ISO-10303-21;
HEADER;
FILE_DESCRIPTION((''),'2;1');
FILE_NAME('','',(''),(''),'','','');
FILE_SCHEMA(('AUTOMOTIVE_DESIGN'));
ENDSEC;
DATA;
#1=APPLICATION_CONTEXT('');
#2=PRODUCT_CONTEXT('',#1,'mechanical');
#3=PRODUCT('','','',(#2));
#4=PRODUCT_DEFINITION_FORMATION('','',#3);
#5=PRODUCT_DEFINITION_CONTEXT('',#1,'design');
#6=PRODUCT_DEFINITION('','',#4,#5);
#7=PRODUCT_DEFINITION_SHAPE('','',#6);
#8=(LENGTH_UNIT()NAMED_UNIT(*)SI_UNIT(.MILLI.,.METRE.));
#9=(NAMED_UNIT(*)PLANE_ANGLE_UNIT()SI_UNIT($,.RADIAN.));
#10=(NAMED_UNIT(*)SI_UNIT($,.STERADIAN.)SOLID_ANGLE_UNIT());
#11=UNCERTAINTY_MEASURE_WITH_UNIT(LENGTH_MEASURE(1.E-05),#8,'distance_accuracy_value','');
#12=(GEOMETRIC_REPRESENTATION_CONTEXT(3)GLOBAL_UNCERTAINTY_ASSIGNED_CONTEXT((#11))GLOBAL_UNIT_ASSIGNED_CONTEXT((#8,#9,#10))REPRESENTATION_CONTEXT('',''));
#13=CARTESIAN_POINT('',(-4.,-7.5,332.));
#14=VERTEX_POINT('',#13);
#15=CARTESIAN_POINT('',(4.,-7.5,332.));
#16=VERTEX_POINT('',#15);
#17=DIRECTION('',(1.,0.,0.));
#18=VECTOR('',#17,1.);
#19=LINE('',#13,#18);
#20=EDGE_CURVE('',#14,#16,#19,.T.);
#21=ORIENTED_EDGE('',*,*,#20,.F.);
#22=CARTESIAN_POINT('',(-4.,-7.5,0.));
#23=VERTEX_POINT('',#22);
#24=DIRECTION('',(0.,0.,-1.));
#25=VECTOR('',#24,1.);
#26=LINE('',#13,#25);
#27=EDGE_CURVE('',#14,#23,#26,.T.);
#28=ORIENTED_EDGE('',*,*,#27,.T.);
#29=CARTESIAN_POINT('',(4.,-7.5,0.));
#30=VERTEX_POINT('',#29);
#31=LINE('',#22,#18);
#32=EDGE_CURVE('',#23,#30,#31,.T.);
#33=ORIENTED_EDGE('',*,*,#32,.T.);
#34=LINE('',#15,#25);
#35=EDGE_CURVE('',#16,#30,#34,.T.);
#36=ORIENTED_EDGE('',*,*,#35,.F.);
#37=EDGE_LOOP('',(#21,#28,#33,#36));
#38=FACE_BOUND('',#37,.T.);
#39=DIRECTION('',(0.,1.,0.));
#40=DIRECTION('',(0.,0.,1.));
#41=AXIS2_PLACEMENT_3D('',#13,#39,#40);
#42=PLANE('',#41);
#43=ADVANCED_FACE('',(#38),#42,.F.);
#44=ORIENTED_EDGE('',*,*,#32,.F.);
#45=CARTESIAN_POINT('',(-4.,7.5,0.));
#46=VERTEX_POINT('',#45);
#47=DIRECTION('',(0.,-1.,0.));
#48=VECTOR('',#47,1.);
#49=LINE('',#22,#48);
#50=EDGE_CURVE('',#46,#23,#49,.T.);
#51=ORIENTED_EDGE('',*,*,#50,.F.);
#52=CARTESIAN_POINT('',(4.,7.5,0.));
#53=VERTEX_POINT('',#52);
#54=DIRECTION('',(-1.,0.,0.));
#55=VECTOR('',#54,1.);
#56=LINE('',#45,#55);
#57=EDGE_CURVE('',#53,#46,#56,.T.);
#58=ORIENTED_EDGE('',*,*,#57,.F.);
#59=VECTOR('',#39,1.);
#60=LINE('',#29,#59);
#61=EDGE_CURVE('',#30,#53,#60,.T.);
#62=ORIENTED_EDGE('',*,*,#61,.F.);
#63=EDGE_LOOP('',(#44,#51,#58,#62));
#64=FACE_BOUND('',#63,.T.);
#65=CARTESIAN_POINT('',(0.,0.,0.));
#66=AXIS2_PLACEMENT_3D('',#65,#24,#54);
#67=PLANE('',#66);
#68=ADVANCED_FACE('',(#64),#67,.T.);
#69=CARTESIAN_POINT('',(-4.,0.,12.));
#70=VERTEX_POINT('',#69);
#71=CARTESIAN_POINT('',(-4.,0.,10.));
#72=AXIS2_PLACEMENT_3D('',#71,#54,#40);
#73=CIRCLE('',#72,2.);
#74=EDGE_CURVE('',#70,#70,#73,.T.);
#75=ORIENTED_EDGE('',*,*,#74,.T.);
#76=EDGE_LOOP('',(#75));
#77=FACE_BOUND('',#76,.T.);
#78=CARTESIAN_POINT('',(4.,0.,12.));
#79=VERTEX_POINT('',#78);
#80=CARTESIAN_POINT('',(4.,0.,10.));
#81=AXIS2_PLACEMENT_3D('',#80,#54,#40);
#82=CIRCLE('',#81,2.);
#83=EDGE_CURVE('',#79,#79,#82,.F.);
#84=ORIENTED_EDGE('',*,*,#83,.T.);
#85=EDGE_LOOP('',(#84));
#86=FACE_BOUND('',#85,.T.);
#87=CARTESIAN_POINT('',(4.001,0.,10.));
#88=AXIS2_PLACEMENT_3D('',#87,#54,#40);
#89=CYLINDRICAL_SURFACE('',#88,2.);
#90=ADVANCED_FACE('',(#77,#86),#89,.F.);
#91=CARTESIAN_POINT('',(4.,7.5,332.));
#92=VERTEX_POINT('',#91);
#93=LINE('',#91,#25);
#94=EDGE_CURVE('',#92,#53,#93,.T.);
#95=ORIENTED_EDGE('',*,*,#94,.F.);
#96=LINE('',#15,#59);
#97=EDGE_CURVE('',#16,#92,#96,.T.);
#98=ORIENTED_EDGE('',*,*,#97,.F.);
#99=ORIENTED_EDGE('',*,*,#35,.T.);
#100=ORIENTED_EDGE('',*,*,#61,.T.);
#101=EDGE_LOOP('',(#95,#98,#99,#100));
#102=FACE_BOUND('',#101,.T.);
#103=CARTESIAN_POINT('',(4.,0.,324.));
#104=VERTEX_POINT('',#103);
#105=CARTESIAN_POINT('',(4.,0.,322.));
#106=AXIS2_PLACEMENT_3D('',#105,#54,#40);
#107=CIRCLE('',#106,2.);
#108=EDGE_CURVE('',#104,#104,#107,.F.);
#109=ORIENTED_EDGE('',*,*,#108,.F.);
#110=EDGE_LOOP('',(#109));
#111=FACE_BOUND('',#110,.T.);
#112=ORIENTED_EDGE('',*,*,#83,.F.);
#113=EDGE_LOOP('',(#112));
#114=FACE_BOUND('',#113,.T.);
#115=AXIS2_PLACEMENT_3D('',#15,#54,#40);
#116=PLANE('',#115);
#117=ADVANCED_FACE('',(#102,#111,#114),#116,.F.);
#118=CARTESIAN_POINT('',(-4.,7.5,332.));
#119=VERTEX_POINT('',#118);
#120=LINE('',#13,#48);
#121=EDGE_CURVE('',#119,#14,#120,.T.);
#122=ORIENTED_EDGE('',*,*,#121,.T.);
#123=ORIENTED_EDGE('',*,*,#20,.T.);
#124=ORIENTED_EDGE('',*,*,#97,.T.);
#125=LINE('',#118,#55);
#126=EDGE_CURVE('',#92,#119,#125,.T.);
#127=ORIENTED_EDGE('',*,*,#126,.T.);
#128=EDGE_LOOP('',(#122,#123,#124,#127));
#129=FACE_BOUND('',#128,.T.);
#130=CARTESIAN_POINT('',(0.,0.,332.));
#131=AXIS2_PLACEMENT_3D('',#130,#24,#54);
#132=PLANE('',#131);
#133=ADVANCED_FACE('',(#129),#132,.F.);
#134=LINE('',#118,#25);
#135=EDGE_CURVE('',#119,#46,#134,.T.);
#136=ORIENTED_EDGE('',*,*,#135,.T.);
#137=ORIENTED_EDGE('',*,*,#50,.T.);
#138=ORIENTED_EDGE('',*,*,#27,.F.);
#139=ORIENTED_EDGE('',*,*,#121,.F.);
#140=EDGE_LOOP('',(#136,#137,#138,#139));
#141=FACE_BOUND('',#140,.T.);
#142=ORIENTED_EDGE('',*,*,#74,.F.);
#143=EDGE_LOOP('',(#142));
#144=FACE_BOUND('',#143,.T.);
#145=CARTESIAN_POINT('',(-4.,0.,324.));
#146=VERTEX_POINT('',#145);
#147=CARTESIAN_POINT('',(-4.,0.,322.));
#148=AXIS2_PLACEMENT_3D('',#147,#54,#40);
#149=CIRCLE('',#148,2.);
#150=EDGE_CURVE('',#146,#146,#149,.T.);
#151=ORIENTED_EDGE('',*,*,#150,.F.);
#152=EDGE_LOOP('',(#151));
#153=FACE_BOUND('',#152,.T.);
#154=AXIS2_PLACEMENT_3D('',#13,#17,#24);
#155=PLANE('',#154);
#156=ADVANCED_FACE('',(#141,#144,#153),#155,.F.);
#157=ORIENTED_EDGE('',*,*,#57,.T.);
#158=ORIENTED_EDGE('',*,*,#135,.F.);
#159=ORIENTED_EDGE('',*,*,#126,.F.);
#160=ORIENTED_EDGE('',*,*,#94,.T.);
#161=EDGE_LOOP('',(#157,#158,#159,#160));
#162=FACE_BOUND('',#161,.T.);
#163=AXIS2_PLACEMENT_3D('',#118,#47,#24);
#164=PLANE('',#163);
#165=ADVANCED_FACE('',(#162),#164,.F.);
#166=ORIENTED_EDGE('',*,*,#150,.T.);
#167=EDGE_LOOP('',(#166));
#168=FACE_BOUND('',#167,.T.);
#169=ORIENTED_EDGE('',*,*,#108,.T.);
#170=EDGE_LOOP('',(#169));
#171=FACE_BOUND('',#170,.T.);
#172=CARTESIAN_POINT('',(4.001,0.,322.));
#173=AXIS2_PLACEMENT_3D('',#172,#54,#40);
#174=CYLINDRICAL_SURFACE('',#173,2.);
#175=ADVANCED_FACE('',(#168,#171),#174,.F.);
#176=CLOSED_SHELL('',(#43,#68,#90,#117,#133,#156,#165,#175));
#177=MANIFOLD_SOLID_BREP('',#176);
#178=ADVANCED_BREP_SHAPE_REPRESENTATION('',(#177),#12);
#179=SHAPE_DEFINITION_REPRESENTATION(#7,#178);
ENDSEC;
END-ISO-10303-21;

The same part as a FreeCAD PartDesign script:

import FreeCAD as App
import Part
import Sketcher

V = App.Vector
Q = App.Units.Quantity


def add_polygon(sketch, points):
    """Adds a closed chain of lines whose ends are joined by coincident constraints."""
    first, n = sketch.GeometryCount, len(points)
    for a, b in zip(points, points[1:] + points[:1]):
        sketch.addGeometry(Part.LineSegment(App.Vector(*a, 0), App.Vector(*b, 0)), False)
    for i in range(n):
        sketch.addConstraint(Sketcher.Constraint("Coincident", first + i, 2, first + (i + 1) % n, 1))

doc = App.newDocument("Part")
body = doc.addObject("PartDesign::Body", "Body")

# Sketch on XY plane
sketch1 = body.newObject("Sketcher::SketchObject", "Sketch")
sketch1.AttachmentSupport = (doc.getObject("XY_Plane"), [""])
sketch1.MapMode = "FlatFace"
add_polygon(sketch1, [(-4, 8), (-4, -8), (4, -8), (4, 8)])  # lines 0-3
sketch1.addConstraint([
    Sketcher.Constraint("Vertical", 0),
    Sketcher.Constraint("Horizontal", 1),
    Sketcher.Constraint("Vertical", 2),
    Sketcher.Constraint("Horizontal", 3),
    Sketcher.Constraint("Symmetric", 0, 2, 2, 2, -1, 1),
    Sketcher.Constraint("DistanceX", 1, 1, 1, 2, Q("8 mm")),
    Sketcher.Constraint("DistanceY", 0, 2, 0, 1, Q("15 mm")),
])
pad1 = body.newObject("PartDesign::Pad", "Pad")
pad1.Profile = sketch1
pad1.Length = 332

# Sketch on YZ plane
sketch2 = body.newObject("Sketcher::SketchObject", "Sketch001")
sketch2.AttachmentSupport = (doc.getObject("YZ_Plane"), [""])
sketch2.MapMode = "FlatFace"
sketch2.AttachmentOffset = App.Placement(V(0, 0, -4), App.Rotation())
sketch2.addGeometry(Part.Circle(V(0, 10, 0), V(0, 0, 1), 2), False)
sketch2.addConstraint([
    Sketcher.Constraint("PointOnObject", 0, 3, -2),
    Sketcher.Constraint("Diameter", 0, Q("4 mm")),
    Sketcher.Constraint("DistanceY", -1, 1, 0, 3, Q("10 mm")),
])
pocket1 = body.newObject("PartDesign::Pocket", "Pocket")
pocket1.Profile = sketch2
pocket1.Type = "UpToFirst"
pocket1.Reversed = True

# Sketch on YZ plane
sketch3 = body.newObject("Sketcher::SketchObject", "Sketch002")
sketch3.AttachmentSupport = (doc.getObject("YZ_Plane"), [""])
sketch3.MapMode = "FlatFace"
sketch3.AttachmentOffset = App.Placement(V(0, 0, -4), App.Rotation())
sketch3.addGeometry(Part.Circle(V(0, 322, 0), V(0, 0, 1), 2), False)
sketch3.addConstraint([
    Sketcher.Constraint("PointOnObject", 0, 3, -2),
    Sketcher.Constraint("Diameter", 0, Q("4 mm")),
    Sketcher.Constraint("DistanceY", -1, 1, 0, 3, Q("322 mm")),
])
pocket2 = body.newObject("PartDesign::Pocket", "Pocket001")
pocket2.Profile = sketch3
pocket2.Type = "UpToFirst"
pocket2.Reversed = True

doc.recompute()
